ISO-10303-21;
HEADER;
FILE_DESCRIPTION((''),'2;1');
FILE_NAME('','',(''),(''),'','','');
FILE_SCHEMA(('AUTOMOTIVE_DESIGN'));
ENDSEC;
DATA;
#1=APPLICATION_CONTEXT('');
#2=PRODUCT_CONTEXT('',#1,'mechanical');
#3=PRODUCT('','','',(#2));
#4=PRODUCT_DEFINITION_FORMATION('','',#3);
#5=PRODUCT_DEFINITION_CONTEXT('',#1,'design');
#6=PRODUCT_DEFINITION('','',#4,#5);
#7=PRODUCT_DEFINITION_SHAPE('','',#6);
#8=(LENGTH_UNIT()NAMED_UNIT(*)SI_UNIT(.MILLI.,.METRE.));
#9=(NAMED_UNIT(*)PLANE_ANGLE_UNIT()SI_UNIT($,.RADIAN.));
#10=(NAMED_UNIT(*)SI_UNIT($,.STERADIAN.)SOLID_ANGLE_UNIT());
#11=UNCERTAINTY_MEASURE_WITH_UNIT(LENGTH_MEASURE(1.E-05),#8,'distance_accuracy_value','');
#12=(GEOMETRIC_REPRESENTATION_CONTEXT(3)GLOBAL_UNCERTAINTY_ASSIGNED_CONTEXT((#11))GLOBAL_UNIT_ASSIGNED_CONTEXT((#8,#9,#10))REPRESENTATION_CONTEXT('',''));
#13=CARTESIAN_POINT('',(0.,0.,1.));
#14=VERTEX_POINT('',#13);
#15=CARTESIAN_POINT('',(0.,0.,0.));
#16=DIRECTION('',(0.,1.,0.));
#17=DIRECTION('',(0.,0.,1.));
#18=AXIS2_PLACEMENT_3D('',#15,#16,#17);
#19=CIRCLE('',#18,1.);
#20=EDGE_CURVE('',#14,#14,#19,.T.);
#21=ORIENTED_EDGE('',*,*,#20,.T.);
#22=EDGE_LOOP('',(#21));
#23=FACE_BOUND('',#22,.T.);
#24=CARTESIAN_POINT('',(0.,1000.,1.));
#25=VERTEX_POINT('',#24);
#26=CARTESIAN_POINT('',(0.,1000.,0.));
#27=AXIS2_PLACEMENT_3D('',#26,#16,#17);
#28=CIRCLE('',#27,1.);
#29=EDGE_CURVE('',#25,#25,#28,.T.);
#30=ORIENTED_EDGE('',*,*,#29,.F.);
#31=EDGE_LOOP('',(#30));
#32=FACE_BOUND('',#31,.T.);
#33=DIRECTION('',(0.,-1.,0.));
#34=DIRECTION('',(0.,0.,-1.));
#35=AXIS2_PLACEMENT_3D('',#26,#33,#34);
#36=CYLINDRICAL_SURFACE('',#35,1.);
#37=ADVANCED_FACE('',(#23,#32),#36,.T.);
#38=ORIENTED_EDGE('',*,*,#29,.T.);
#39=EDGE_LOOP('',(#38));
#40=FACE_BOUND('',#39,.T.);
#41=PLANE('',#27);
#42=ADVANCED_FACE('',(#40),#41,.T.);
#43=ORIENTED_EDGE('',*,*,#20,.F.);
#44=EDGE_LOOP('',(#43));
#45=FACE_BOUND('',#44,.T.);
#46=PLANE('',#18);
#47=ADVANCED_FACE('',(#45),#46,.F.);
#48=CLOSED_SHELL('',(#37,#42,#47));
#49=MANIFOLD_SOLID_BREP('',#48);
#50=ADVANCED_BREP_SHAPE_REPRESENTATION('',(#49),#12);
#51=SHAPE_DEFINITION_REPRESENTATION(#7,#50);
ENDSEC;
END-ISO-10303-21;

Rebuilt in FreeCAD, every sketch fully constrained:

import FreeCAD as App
import Part
import Sketcher

V = App.Vector
Q = App.Units.Quantity

doc = App.newDocument("Part")
params = doc.addObject("Spreadsheet::Sheet", "Params")
for row, (alias, value) in enumerate([
    ("sketch1_diameter", "2 mm"),
    ("pad1_length", "1000 mm"),
], start=1):
    params.set(f"A{row}", alias)
    params.set(f"B{row}", "=" + value)
    params.setAlias(f"B{row}", alias)

body = doc.addObject("PartDesign::Body", "Body")

# Sketch on XZ plane
sketch1 = body.newObject("Sketcher::SketchObject", "Sketch")
sketch1.AttachmentSupport = (doc.getObject("XZ_Plane"), [""])
sketch1.MapMode = "FlatFace"
sketch1.addGeometry(Part.Circle(V(0, 0, 0), V(0, 0, 1), 1), False)
sketch1.addConstraint([
    Sketcher.Constraint("Coincident", 0, 3, -1, 1),
    Sketcher.Constraint("Diameter", 0, Q("2 mm")),
])
sketch1.setExpression("Constraints[1]", "Params.sketch1_diameter")
pad1 = body.newObject("PartDesign::Pad", "Pad")
pad1.Profile = sketch1
pad1.setExpression("Length", "Params.pad1_length")
pad1.Reversed = True

doc.recompute()
